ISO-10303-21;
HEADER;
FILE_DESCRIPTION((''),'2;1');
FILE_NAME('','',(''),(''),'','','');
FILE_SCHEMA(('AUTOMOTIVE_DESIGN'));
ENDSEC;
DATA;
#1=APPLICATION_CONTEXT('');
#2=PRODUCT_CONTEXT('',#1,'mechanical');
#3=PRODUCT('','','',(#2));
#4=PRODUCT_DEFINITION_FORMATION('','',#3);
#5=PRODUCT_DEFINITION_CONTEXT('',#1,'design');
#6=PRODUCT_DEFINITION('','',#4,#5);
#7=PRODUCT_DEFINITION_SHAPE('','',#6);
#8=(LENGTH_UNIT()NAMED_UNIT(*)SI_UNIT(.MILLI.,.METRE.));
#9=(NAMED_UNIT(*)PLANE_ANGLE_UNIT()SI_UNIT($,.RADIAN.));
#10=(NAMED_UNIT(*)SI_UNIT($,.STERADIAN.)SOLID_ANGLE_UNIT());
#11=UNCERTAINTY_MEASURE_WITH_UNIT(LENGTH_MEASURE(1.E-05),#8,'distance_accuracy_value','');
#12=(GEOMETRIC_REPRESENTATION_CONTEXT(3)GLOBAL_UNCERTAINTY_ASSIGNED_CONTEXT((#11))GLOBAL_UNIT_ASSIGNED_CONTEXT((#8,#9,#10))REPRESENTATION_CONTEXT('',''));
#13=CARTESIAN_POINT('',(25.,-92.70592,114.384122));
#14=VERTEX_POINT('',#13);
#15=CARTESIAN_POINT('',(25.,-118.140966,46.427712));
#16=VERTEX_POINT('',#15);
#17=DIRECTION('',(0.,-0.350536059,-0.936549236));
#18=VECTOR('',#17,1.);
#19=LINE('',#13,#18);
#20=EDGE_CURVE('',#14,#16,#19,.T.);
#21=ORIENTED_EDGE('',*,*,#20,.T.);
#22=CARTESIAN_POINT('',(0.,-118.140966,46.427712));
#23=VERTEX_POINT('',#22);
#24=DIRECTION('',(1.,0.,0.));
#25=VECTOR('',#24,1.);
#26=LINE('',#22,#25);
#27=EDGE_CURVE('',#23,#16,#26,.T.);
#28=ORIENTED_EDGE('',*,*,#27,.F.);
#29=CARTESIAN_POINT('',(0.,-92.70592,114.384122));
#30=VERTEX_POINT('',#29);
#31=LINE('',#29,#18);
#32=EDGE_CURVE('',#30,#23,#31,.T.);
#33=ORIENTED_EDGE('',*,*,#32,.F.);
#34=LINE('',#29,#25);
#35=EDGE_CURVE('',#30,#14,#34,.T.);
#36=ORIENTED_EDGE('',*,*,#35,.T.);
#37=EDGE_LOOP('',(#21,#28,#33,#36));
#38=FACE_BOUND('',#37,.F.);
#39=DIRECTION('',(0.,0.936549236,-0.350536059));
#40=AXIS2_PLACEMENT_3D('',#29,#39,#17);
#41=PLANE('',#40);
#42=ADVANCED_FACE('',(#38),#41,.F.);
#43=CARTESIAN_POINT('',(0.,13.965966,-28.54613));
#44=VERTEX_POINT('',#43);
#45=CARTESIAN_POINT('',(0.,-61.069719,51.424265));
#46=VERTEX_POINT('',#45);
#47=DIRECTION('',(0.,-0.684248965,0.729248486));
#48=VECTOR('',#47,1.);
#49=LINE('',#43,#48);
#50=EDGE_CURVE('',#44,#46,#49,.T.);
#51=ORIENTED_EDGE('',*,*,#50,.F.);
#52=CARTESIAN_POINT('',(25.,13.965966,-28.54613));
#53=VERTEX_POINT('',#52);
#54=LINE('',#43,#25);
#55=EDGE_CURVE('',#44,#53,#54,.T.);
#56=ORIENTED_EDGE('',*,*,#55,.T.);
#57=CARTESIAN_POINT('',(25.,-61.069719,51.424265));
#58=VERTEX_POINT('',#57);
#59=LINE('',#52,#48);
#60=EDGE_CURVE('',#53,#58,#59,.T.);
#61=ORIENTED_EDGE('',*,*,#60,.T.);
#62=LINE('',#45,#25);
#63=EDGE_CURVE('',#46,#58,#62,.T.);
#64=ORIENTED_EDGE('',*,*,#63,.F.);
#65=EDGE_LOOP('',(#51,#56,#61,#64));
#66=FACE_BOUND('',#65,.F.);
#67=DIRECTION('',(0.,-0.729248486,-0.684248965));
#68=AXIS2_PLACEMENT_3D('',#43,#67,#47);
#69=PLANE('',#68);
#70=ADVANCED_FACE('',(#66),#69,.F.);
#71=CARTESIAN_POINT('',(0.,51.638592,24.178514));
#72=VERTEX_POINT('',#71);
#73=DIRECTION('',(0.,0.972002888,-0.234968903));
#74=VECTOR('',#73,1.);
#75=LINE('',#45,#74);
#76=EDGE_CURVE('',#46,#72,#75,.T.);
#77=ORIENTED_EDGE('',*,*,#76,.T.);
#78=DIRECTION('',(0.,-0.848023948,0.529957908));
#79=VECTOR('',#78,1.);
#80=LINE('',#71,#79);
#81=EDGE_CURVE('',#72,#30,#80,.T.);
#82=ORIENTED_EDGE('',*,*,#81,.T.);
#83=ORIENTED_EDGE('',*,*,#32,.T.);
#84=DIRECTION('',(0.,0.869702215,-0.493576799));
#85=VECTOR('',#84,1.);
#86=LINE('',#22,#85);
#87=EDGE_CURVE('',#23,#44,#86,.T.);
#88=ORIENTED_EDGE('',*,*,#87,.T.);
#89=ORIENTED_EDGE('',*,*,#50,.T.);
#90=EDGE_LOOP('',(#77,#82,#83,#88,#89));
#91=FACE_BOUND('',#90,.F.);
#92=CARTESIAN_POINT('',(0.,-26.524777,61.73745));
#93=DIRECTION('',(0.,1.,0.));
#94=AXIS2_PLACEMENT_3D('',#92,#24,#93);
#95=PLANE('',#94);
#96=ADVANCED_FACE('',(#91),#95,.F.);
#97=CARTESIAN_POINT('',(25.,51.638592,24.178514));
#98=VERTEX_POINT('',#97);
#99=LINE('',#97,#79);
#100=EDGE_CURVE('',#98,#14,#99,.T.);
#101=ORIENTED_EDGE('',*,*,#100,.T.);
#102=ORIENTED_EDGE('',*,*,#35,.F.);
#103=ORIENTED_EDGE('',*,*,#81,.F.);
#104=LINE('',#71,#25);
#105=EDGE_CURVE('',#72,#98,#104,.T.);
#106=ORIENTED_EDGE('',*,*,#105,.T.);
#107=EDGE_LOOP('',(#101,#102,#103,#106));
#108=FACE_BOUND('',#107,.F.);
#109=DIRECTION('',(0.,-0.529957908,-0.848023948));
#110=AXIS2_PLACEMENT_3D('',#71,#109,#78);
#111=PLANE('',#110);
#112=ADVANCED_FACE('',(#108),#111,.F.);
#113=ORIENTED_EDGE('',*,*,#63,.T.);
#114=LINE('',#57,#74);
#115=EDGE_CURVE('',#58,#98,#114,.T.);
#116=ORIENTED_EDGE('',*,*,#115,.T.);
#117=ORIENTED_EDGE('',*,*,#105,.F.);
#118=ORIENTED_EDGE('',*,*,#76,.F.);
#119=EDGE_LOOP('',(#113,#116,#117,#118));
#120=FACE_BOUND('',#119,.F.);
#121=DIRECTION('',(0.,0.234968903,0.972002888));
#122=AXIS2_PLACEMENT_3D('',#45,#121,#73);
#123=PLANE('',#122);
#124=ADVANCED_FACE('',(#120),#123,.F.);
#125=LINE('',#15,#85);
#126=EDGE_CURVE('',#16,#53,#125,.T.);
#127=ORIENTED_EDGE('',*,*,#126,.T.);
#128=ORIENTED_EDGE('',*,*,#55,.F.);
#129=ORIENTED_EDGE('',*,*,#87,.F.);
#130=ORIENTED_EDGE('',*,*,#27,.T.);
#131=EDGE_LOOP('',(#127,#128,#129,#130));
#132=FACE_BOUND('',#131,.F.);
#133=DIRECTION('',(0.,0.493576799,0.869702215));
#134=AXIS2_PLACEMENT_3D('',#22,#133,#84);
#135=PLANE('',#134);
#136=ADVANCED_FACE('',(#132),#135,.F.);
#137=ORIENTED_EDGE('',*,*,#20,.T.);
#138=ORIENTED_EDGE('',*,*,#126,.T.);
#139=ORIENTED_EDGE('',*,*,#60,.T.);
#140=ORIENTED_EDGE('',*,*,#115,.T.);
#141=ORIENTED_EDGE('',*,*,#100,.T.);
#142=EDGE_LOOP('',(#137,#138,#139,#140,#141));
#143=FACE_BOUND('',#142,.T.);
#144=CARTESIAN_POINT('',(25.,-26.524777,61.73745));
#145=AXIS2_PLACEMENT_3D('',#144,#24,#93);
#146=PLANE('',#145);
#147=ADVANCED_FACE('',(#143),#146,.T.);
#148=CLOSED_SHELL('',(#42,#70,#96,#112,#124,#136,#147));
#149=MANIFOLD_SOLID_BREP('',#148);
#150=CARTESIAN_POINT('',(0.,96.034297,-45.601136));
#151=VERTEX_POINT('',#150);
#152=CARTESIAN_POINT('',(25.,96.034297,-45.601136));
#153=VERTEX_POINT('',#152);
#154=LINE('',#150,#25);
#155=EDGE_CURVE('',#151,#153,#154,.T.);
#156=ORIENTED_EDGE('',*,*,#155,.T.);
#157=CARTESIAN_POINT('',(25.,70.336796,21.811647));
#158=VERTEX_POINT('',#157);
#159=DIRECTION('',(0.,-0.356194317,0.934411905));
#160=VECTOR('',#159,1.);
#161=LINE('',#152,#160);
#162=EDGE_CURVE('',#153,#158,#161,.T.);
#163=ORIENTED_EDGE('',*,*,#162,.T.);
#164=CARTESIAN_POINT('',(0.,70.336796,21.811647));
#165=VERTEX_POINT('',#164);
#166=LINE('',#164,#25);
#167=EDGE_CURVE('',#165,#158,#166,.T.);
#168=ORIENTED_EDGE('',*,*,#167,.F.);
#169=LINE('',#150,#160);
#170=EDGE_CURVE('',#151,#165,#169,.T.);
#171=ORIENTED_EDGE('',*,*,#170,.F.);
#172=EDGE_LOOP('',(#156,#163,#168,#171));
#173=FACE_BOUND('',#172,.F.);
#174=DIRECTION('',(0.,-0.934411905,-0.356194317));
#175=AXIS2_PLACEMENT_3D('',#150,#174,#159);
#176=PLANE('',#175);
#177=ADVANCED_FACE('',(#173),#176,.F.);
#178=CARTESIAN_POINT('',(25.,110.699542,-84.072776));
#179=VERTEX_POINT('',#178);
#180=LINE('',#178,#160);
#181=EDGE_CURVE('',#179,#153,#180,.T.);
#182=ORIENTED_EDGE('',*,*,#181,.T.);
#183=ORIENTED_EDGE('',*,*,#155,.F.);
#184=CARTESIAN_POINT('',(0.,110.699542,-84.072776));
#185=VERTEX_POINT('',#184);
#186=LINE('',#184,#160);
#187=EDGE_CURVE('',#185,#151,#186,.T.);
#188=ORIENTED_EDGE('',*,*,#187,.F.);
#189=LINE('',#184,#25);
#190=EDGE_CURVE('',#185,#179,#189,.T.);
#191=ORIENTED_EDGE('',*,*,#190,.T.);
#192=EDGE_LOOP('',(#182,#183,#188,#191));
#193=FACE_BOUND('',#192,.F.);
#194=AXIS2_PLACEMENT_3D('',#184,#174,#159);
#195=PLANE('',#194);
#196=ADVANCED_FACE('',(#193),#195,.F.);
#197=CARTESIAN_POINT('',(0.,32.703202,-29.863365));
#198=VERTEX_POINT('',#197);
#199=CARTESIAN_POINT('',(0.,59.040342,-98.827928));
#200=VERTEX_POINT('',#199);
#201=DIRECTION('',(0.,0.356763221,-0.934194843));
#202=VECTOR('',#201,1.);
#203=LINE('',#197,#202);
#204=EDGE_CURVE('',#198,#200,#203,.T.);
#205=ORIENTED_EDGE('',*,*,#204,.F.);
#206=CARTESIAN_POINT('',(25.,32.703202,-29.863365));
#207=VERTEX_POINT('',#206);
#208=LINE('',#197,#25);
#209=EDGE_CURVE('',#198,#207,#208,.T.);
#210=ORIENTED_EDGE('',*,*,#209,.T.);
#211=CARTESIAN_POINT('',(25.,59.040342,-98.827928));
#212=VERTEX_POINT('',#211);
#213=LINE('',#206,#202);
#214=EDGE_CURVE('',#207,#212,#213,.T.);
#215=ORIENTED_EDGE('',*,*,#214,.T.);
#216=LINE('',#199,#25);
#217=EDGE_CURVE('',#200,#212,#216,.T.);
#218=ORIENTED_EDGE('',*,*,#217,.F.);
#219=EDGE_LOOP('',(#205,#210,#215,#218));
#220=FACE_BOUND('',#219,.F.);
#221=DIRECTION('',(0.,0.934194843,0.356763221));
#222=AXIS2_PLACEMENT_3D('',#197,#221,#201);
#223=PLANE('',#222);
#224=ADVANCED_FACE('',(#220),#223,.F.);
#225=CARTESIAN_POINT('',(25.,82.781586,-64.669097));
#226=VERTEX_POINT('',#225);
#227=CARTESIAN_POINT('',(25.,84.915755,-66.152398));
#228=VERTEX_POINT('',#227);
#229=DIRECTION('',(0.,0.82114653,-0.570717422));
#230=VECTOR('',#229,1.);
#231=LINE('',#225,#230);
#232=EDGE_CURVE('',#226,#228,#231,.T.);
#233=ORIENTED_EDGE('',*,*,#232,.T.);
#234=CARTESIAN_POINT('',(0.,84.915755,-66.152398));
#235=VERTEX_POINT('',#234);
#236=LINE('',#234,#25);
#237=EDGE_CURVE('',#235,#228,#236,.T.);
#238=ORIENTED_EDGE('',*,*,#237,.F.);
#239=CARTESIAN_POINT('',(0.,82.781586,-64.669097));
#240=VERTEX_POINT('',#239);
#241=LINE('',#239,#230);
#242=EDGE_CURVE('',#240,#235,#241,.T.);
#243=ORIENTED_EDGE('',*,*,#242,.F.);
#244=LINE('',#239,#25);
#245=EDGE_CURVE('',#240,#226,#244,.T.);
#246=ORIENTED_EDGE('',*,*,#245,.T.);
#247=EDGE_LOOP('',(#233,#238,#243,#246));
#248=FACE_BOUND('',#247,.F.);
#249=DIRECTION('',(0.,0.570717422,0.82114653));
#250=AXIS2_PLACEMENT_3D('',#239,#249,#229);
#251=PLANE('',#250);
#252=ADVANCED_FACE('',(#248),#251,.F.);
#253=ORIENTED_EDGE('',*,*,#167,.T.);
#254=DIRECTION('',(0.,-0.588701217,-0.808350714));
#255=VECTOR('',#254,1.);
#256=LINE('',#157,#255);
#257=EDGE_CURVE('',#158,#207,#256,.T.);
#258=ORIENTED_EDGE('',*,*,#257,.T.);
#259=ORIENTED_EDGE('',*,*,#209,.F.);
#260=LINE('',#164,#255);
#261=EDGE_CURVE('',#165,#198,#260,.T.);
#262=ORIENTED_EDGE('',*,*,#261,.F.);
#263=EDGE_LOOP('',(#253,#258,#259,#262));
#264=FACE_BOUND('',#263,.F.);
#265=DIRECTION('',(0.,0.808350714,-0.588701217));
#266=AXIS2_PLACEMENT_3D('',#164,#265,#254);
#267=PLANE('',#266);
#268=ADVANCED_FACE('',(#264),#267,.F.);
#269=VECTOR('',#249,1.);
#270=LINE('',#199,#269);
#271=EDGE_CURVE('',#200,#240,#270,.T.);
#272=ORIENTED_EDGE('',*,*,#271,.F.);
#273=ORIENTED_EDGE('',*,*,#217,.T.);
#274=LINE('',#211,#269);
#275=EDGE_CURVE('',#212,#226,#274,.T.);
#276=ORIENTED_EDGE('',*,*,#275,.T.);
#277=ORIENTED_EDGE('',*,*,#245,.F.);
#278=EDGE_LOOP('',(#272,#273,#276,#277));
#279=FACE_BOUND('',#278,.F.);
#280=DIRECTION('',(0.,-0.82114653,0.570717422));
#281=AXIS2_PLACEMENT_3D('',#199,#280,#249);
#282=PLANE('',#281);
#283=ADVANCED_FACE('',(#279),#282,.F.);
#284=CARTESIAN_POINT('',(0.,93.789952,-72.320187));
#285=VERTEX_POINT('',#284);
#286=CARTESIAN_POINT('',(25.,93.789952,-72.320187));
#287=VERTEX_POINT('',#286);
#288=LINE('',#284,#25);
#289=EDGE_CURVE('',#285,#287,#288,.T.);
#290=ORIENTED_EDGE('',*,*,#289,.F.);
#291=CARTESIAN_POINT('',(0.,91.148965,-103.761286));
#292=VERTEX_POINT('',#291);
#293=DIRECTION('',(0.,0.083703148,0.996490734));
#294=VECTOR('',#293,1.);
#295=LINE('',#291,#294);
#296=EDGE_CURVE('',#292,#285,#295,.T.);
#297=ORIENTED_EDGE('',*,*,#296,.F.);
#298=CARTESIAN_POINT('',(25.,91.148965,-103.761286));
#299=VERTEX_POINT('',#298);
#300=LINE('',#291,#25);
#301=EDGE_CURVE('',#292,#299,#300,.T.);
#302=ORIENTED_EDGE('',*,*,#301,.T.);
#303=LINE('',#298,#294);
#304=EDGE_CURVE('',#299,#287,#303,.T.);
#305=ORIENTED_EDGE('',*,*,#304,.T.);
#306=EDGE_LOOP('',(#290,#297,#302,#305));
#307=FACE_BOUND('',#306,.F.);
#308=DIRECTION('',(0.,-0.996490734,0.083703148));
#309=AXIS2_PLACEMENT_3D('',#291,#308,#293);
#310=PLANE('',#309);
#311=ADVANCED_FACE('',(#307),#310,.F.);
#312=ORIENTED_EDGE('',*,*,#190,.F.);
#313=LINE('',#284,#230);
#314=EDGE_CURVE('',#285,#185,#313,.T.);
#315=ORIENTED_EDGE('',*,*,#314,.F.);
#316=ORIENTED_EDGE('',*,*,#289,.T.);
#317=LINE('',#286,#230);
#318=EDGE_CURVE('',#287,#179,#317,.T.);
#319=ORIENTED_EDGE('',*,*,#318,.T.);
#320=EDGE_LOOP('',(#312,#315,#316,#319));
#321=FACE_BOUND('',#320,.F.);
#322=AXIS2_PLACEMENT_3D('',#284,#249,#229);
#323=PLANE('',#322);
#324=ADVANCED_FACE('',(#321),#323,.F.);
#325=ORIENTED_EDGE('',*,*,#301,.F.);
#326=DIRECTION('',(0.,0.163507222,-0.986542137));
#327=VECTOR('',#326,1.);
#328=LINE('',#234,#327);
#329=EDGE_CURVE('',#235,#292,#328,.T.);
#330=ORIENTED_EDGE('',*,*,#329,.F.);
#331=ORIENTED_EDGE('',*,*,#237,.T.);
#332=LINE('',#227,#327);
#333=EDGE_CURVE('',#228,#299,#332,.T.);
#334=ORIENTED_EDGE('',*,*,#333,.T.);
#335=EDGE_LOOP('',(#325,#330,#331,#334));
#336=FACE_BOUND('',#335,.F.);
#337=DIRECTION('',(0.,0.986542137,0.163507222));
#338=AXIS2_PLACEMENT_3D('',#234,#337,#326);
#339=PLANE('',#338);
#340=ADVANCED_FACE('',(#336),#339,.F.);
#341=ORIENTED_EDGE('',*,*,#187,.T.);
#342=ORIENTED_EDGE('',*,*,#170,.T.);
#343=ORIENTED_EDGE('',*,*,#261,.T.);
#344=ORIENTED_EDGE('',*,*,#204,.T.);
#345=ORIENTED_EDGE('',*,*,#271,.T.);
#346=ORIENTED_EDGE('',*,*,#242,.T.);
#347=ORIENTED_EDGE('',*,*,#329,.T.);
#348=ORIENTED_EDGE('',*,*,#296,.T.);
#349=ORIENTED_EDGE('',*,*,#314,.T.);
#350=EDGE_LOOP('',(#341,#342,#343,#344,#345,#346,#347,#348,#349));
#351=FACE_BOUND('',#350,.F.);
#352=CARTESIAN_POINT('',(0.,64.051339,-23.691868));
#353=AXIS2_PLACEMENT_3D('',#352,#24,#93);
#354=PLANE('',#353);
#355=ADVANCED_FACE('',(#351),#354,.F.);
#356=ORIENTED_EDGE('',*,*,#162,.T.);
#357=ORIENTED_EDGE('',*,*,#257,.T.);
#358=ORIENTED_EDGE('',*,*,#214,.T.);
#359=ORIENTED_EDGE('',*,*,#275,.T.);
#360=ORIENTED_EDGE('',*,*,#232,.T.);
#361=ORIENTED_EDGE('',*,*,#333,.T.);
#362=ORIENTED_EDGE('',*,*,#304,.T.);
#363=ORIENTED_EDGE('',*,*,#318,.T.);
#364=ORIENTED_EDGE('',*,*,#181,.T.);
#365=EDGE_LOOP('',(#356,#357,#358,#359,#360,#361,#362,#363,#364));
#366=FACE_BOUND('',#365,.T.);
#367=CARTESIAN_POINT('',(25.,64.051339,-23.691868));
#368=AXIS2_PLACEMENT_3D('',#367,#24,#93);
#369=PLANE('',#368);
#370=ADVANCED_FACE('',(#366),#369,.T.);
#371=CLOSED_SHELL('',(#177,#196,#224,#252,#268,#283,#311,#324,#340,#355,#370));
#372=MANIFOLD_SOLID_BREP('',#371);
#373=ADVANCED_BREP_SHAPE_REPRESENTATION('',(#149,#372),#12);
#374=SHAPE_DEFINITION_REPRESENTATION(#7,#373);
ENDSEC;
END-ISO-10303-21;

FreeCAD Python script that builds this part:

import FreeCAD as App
import Part
import Sketcher

V = App.Vector
Q = App.Units.Quantity


def add_polygon(sketch, points):
    """Adds a closed chain of lines whose ends are joined by coincident constraints."""
    first, n = sketch.GeometryCount, len(points)
    for a, b in zip(points, points[1:] + points[:1]):
        sketch.addGeometry(Part.LineSegment(App.Vector(*a, 0), App.Vector(*b, 0)), False)
    for i in range(n):
        sketch.addConstraint(Sketcher.Constraint("Coincident", first + i, 2, first + (i + 1) % n, 1))

doc = App.newDocument("Part")
body = doc.addObject("PartDesign::Body", "Body")

sketch1 = body.newObject("Sketcher::SketchObject", "Sketch")
sketch1.AttachmentSupport = (doc.getObject("YZ_Plane"), [""])
sketch1.MapMode = "FlatFace"
add_polygon(sketch1, [(70.3, 21.8), (32.7, -29.9), (59, -98.8), (82.8, -64.7), (84.9, -66.2), (91.1, -103.8), (93.8, -72.3), (110.7, -84.1), (96, -45.6)])
sketch1.addConstraint(Sketcher.Constraint("Perpendicular", 2, 3))
sketch1.addConstraint(Sketcher.Constraint("Parallel", 3, 6))
sketch1.addConstraint(Sketcher.Constraint("Parallel", 7, 8))
sketch1.addConstraint(Sketcher.Constraint("DistanceY", 3, 2, 2, 2, Q("1.483301 mm")))
sketch1.addConstraint(Sketcher.Constraint("DistanceY", 4, 2, 5, 2, Q("31.441098 mm")))
sketch1.addConstraint(Sketcher.Constraint("DistanceX", 1, 2, 6, 2, Q("51.6592 mm")))
sketch1.addConstraint(Sketcher.Constraint("DistanceX", 8, 2, 7, 2, Q("25.6975 mm")))
sketch1.addConstraint(Sketcher.Constraint("Distance", 3, Q("2.599011 mm")))
sketch1.addConstraint(Sketcher.Constraint("Distance", 6, Q("20.592658 mm")))
sketch1.addConstraint(Sketcher.Constraint("Distance", 8, Q("72.144611 mm")))
sketch1.addConstraint(Sketcher.Constraint("DistanceX", -1, 1, 1, 2, Q("59.040342 mm")))
sketch1.addConstraint(Sketcher.Constraint("DistanceY", 1, 2, -1, 1, Q("98.827928 mm")))
sketch1.addConstraint(Sketcher.Constraint("DistanceX", 0, 2, 1, 2, Q("26.337139 mm")))
sketch1.addConstraint(Sketcher.Constraint("DistanceY", 1, 2, 2, 2, Q("34.158832 mm")))
sketch1.addConstraint(Sketcher.Constraint("DistanceY", 2, 2, 0, 2, Q("34.805732 mm")))
sketch1.addConstraint(Sketcher.Constraint("DistanceX", 3, 2, 4, 2, Q("6.23321 mm")))
sketch1.addConstraint(Sketcher.Constraint("DistanceY", 4, 2, 2, 2, Q("39.092189 mm")))
sketch1.addConstraint(Sketcher.Constraint("DistanceX", 2, 2, 7, 2, Q("13.252711 mm")))
pad1 = body.newObject("PartDesign::Pad", "Pad")
pad1.Profile = sketch1
pad1.Length = 25
body2 = doc.addObject("PartDesign::Body", "Body001")

sketch2 = body2.newObject("Sketcher::SketchObject", "Sketch001")
sketch2.AttachmentSupport = (doc.getObject("YZ_Plane001"), [""])
sketch2.MapMode = "FlatFace"
add_polygon(sketch2, [(-61, 51), (52, 24), (-93, 114), (-118, 46), (14, -29)])
sketch2.addConstraint(Sketcher.Constraint("DistanceX", 1, 2, 4, 2, Q("31.636201 mm")))
sketch2.addConstraint(Sketcher.Constraint("Distance", 0, Q("115.954708 mm")))
sketch2.addConstraint(Sketcher.Constraint("Distance", 1, Q("170.212778 mm")))
sketch2.addConstraint(Sketcher.Constraint("Distance", 3, Q("151.89904 mm")))
sketch2.addConstraint(Sketcher.Constraint("Distance", 4, Q("109.66138 mm")))
sketch2.addConstraint(Sketcher.Constraint("DistanceX", 1, 2, -1, 1, Q("92.70592 mm")))
sketch2.addConstraint(Sketcher.Constraint("DistanceY", -1, 1, 2, 2, Q("46.427712 mm")))
sketch2.addConstraint(Sketcher.Constraint("DistanceY", 3, 2, -1, 1, Q("28.54613 mm")))
sketch2.addConstraint(Sketcher.Constraint("DistanceY", 2, 2, 1, 2, Q("67.95641 mm")))
sketch2.addConstraint(Sketcher.Constraint("DistanceX", 4, 2, 0, 2, Q("112.708312 mm")))
pad2 = body2.newObject("PartDesign::Pad", "Pad001")
pad2.Profile = sketch2
pad2.Length = 25

doc.recompute()
